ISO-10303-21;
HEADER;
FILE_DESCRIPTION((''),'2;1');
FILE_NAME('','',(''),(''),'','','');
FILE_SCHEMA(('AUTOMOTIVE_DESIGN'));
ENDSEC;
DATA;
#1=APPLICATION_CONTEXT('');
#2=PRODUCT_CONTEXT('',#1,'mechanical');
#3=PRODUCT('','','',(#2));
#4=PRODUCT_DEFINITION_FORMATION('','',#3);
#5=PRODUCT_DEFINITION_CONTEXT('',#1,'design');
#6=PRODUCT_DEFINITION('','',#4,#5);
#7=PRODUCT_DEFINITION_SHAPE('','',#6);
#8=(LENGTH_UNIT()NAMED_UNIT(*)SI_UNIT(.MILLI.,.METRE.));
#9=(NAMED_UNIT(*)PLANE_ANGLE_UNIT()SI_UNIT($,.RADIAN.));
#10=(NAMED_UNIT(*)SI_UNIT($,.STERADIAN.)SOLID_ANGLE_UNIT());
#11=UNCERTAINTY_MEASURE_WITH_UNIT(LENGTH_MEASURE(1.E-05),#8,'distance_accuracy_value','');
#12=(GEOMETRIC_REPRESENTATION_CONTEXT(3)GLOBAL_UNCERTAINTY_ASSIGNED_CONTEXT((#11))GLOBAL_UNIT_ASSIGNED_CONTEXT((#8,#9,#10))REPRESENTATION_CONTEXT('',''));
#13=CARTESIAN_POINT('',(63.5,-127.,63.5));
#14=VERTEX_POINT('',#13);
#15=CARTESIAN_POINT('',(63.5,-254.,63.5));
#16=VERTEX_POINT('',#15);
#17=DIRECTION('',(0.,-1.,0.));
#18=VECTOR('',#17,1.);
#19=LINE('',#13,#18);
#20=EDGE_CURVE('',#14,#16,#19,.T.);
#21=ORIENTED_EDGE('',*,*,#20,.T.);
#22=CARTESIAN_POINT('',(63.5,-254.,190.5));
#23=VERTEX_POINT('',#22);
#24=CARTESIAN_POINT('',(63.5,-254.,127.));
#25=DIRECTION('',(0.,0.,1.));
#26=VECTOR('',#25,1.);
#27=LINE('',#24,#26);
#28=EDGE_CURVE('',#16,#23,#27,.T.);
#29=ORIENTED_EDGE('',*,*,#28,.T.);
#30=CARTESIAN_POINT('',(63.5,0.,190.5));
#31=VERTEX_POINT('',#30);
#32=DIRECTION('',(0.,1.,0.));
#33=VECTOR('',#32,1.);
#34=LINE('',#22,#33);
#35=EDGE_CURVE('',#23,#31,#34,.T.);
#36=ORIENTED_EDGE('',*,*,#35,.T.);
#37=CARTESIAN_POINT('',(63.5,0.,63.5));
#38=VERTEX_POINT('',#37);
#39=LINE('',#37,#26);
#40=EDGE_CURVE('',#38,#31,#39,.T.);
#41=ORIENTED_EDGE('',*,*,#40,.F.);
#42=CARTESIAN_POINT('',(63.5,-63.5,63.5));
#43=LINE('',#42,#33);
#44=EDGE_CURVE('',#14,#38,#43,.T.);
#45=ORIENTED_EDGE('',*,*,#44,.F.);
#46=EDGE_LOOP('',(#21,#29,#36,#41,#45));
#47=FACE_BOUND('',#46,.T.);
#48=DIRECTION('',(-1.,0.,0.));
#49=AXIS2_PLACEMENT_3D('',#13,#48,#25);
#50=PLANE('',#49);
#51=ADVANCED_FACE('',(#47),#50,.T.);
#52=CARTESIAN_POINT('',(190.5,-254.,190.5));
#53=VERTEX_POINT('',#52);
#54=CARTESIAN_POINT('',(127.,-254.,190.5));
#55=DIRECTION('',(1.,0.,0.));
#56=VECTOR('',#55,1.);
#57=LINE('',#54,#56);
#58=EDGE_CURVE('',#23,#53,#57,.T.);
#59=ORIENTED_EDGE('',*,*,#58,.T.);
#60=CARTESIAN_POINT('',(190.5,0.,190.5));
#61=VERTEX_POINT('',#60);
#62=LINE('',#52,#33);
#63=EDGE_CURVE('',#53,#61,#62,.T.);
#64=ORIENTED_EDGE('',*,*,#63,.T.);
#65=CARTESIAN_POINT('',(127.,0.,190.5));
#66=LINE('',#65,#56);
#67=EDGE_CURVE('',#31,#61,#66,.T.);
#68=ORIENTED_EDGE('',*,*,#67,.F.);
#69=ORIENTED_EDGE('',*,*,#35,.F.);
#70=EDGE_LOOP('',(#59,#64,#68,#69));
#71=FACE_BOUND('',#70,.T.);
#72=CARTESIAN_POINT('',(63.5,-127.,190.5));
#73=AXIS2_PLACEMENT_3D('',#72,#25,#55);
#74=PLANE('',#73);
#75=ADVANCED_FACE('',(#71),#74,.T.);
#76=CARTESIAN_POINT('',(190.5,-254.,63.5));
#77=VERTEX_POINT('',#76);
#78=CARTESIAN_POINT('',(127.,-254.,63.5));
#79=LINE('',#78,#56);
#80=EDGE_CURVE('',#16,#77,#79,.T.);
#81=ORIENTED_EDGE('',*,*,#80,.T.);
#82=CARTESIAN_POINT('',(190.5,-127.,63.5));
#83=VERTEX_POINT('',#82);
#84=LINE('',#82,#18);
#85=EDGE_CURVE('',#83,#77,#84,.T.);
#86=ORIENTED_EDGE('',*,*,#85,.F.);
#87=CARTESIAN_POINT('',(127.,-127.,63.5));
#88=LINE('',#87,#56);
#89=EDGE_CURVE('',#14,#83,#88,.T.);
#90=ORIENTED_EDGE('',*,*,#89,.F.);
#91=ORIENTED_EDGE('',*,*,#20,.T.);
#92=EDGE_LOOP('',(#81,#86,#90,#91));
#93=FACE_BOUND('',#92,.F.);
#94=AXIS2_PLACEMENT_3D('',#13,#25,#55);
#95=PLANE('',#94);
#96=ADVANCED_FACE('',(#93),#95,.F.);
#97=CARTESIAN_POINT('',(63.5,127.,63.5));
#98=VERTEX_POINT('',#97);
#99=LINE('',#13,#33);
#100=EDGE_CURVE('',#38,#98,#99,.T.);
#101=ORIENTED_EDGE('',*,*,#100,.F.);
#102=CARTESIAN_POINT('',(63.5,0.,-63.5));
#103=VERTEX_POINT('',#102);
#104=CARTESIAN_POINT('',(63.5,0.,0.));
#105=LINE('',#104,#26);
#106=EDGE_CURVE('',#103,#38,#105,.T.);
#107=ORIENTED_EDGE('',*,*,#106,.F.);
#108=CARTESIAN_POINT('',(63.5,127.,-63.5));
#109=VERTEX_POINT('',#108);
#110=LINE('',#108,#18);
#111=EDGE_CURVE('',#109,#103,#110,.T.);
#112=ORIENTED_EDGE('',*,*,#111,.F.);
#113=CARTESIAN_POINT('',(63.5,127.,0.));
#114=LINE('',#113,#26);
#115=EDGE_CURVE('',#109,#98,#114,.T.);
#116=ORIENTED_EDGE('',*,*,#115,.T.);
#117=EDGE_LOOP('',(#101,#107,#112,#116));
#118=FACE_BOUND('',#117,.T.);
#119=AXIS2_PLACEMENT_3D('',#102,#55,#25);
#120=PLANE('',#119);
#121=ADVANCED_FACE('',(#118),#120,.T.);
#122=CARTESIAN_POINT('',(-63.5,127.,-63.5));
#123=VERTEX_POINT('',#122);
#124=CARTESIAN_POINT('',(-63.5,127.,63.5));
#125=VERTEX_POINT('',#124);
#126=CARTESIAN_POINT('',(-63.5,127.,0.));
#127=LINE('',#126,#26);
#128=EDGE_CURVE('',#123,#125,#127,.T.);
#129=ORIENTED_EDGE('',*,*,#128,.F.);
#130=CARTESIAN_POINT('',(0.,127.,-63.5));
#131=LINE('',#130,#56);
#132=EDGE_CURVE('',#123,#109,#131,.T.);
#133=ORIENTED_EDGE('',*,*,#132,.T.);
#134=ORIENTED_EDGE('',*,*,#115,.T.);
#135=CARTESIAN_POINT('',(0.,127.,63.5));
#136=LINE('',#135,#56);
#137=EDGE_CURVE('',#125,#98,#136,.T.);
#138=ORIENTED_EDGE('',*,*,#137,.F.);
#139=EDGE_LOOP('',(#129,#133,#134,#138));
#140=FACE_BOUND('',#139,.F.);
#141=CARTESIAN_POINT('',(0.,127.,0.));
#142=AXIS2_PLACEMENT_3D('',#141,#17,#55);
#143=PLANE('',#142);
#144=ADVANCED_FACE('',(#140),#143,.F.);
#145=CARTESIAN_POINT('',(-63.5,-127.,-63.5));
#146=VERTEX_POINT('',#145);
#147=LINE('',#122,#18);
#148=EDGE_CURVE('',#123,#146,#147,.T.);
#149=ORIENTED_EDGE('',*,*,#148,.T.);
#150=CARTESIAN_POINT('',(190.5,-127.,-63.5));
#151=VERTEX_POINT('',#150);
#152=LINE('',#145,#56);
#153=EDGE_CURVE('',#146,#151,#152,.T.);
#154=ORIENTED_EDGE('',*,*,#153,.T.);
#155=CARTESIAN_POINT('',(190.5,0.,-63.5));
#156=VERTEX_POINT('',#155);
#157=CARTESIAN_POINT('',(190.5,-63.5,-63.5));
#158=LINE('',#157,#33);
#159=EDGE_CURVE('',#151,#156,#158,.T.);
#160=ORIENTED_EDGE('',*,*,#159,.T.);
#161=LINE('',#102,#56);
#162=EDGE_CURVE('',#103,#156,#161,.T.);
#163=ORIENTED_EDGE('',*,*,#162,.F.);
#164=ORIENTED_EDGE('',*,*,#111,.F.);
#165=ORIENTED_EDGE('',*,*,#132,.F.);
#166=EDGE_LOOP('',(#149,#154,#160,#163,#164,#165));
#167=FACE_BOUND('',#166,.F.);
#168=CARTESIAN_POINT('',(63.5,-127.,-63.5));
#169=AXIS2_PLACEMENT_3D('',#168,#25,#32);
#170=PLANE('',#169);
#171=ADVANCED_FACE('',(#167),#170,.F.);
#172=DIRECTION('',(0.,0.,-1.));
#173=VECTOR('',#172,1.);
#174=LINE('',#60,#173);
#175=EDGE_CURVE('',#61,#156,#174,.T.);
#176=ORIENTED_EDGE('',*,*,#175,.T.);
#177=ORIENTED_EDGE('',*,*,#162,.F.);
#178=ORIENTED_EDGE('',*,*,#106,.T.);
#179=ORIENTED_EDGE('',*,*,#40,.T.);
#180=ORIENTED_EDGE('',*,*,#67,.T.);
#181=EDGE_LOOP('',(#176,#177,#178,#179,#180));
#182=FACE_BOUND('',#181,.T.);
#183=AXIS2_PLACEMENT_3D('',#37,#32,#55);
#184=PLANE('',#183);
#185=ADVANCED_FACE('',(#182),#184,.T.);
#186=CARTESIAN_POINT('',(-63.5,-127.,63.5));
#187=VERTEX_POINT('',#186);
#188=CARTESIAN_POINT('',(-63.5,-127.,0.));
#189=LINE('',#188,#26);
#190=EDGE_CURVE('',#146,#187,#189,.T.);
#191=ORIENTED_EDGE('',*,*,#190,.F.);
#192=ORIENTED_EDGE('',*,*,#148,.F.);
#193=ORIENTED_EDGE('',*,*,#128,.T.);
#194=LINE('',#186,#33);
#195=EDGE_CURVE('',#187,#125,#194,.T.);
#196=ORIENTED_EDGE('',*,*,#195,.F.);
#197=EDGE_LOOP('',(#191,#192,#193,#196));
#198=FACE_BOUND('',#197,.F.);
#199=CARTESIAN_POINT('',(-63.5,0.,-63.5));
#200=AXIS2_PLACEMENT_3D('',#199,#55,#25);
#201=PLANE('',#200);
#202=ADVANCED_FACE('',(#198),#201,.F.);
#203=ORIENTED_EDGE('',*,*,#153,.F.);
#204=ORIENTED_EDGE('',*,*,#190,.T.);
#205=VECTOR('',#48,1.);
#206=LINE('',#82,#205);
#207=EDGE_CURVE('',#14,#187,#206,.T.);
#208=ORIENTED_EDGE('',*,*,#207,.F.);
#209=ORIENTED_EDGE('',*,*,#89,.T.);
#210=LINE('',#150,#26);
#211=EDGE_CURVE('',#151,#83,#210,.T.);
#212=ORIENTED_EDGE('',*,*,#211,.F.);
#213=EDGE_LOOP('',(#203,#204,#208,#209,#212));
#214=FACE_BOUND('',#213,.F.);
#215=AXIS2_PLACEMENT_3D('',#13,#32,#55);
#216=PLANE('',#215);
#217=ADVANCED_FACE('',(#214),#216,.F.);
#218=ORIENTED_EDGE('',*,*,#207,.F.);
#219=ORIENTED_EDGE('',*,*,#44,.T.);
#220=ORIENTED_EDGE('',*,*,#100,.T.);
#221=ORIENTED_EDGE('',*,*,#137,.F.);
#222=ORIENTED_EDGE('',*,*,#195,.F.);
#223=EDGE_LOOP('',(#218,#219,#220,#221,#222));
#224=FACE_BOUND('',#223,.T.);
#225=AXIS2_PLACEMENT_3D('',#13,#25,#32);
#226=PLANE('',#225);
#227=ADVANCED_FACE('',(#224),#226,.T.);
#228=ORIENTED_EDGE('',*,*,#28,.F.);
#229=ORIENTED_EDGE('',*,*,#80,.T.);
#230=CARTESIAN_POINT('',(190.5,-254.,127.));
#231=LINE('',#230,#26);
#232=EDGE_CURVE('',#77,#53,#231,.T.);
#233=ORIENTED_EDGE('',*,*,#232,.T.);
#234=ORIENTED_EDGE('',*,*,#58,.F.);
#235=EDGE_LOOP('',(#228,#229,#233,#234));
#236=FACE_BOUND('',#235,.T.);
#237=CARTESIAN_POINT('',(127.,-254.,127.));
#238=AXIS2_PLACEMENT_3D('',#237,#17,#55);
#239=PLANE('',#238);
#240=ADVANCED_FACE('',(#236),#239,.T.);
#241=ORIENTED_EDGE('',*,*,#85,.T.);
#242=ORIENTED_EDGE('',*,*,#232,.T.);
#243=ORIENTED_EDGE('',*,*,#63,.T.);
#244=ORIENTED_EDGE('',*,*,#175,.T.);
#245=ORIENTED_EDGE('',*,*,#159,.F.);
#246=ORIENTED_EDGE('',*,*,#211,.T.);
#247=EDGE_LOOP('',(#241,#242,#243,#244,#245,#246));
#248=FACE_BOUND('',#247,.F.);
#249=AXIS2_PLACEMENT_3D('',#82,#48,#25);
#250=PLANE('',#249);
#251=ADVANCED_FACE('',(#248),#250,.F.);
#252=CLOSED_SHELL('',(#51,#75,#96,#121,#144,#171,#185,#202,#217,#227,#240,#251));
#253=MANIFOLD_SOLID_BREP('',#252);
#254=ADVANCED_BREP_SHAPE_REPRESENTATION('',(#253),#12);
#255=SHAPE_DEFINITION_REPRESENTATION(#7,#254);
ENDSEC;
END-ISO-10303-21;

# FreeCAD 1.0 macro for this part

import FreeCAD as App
import Part
import Sketcher

V = App.Vector
Q = App.Units.Quantity

doc = App.newDocument("Part")
body = doc.addObject("PartDesign::Body", "Body")

sketch1 = body.newObject("Sketcher::SketchObject", "Sketch")
sketch1.AttachmentSupport = (doc.getObject("XZ_Plane"), [""])
sketch1.MapMode = "FlatFace"
sketch1.addGeometry(Part.LineSegment(V(-63.5, 63.5, 0), V(-63.5, -63.5, 0)), False)
sketch1.addGeometry(Part.LineSegment(V(-63.5, -63.5, 0), V(63.5, -63.5, 0)), False)
sketch1.addGeometry(Part.LineSegment(V(63.5, -63.5, 0), V(63.5, 63.5, 0)), False)
sketch1.addGeometry(Part.LineSegment(V(63.5, 63.5, 0), V(-63.5, 63.5, 0)), False)
sketch1.addConstraint(Sketcher.Constraint("Coincident", 0, 2, 1, 1))
sketch1.addConstraint(Sketcher.Constraint("Coincident", 1, 2, 2, 1))
sketch1.addConstraint(Sketcher.Constraint("Coincident", 2, 2, 3, 1))
sketch1.addConstraint(Sketcher.Constraint("Coincident", 3, 2, 0, 1))
sketch1.addConstraint(Sketcher.Constraint("Vertical", 0))
sketch1.addConstraint(Sketcher.Constraint("Horizontal", 1))
sketch1.addConstraint(Sketcher.Constraint("Vertical", 2))
sketch1.addConstraint(Sketcher.Constraint("Horizontal", 3))
sketch1.addConstraint(Sketcher.Constraint("Symmetric", 0, 2, 2, 2, -1, 1))
sketch1.addConstraint(Sketcher.Constraint("Equal", 3, 0))
sketch1.addConstraint(Sketcher.Constraint("DistanceX", 1, 1, 1, 2, Q("5 in")))
pad1 = body.newObject("PartDesign::Pad", "Pad")
pad1.Profile = sketch1
pad1.Length = Q("10 in")
pad1.Midplane = True

sketch2 = body.newObject("Sketcher::SketchObject", "Sketch001")
sketch2.AttachmentSupport = (doc.getObject("YZ_Plane"), [""])
sketch2.MapMode = "FlatFace"
sketch2.AttachmentOffset = App.Placement(V(0, 0, 2.5 * 25.4), App.Rotation())
sketch2.addGeometry(Part.LineSegment(V(-127, 63.5, 0), V(-127, -63.5, 0)), False)
sketch2.addGeometry(Part.LineSegment(V(-127, -63.5, 0), V(0, -63.5, 0)), False)
sketch2.addGeometry(Part.LineSegment(V(0, -63.5, 0), V(0, 63.5, 0)), False)
sketch2.addGeometry(Part.LineSegment(V(0, 63.5, 0), V(-127, 63.5, 0)), False)
sketch2.addConstraint(Sketcher.Constraint("Coincident", 0, 2, 1, 1))
sketch2.addConstraint(Sketcher.Constraint("Coincident", 1, 2, 2, 1))
sketch2.addConstraint(Sketcher.Constraint("Coincident", 2, 2, 3, 1))
sketch2.addConstraint(Sketcher.Constraint("Coincident", 3, 2, 0, 1))
sketch2.addConstraint(Sketcher.Constraint("Vertical", 0))
sketch2.addConstraint(Sketcher.Constraint("Horizontal", 1))
sketch2.addConstraint(Sketcher.Constraint("Vertical", 2))
sketch2.addConstraint(Sketcher.Constraint("Horizontal", 3))
sketch2.addConstraint(Sketcher.Constraint("Symmetric", 1, 2, 2, 2, -1, 1))
sketch2.addConstraint(Sketcher.Constraint("Equal", 3, 0))
sketch2.addConstraint(Sketcher.Constraint("DistanceX", 1, 1, 1, 2, Q("5 in")))
pad2 = body.newObject("PartDesign::Pad", "Pad001")
pad2.Profile = sketch2
pad2.Length = Q("5 in")

sketch3 = body.newObject("Sketcher::SketchObject", "Sketch002")
sketch3.AttachmentSupport = (doc.getObject("XY_Plane"), [""])
sketch3.MapMode = "FlatFace"
sketch3.AttachmentOffset = App.Placement(V(0, 0, 2.5 * 25.4), App.Rotation())
sketch3.addGeometry(Part.LineSegment(V(63.5, 0, 0), V(63.5, -127, 0)), False)
sketch3.addGeometry(Part.LineSegment(V(63.5, -127, 0), V(190.5, -127, 0)), False)
sketch3.addGeometry(Part.LineSegment(V(190.5, -127, 0), V(190.5, 0, 0)), False)
sketch3.addGeometry(Part.LineSegment(V(190.5, 0, 0), V(63.5, 0, 0)), False)
sketch3.addConstraint(Sketcher.Constraint("Coincident", 0, 2, 1, 1))
sketch3.addConstraint(Sketcher.Constraint("Coincident", 1, 2, 2, 1))
sketch3.addConstraint(Sketcher.Constraint("Coincident", 2, 2, 3, 1))
sketch3.addConstraint(Sketcher.Constraint("Coincident", 3, 2, 0, 1))
sketch3.addConstraint(Sketcher.Constraint("Vertical", 0))
sketch3.addConstraint(Sketcher.Constraint("Horizontal", 1))
sketch3.addConstraint(Sketcher.Constraint("Vertical", 2))
sketch3.addConstraint(Sketcher.Constraint("Horizontal", 3))
sketch3.addConstraint(Sketcher.Constraint("PointOnObject", 2, 2, -1))
sketch3.addConstraint(Sketcher.Constraint("Equal", 3, 0))
sketch3.addConstraint(Sketcher.Constraint("DistanceX", 1, 1, 1, 2, Q("5 in")))
sketch3.addConstraint(Sketcher.Constraint("DistanceX", -1, 1, 0, 2, Q("2.5 in")))
pad3 = body.newObject("PartDesign::Pad", "Pad002")
pad3.Profile = sketch3
pad3.Length = Q("5 in")

sketch4 = body.newObject("Sketcher::SketchObject", "Sketch003")
sketch4.AttachmentSupport = (doc.getObject("XZ_Plane"), [""])
sketch4.MapMode = "FlatFace"
sketch4.AttachmentOffset = App.Placement(V(0, 0, 5 * 25.4), App.Rotation())
sketch4.addGeometry(Part.LineSegment(V(63.5, 190.5, 0), V(63.5, 63.5, 0)), False)
sketch4.addGeometry(Part.LineSegment(V(63.5, 63.5, 0), V(190.5, 63.5, 0)), False)
sketch4.addGeometry(Part.LineSegment(V(190.5, 63.5, 0), V(190.5, 190.5, 0)), False)
sketch4.addGeometry(Part.LineSegment(V(190.5, 190.5, 0), V(63.5, 190.5, 0)), False)
sketch4.addConstraint(Sketcher.Constraint("Coincident", 0, 2, 1, 1))
sketch4.addConstraint(Sketcher.Constraint("Coincident", 1, 2, 2, 1))
sketch4.addConstraint(Sketcher.Constraint("Coincident", 2, 2, 3, 1))
sketch4.addConstraint(Sketcher.Constraint("Coincident", 3, 2, 0, 1))
sketch4.addConstraint(Sketcher.Constraint("Vertical", 0))
sketch4.addConstraint(Sketcher.Constraint("Horizontal", 1))
sketch4.addConstraint(Sketcher.Constraint("Vertical", 2))
sketch4.addConstraint(Sketcher.Constraint("Horizontal", 3))
sketch4.addConstraint(Sketcher.Constraint("Equal", 3, 0))
sketch4.addConstraint(Sketcher.Constraint("DistanceX", 1, 1, 1, 2, Q("5 in")))
sketch4.addConstraint(Sketcher.Constraint("DistanceX", -1, 1, 0, 2, Q("2.5 in")))
sketch4.addConstraint(Sketcher.Constraint("DistanceY", -1, 1, 0, 2, Q("2.5 in")))
pad4 = body.newObject("PartDesign::Pad", "Pad003")
pad4.Profile = sketch4
pad4.Length = Q("5 in")

doc.recompute()
